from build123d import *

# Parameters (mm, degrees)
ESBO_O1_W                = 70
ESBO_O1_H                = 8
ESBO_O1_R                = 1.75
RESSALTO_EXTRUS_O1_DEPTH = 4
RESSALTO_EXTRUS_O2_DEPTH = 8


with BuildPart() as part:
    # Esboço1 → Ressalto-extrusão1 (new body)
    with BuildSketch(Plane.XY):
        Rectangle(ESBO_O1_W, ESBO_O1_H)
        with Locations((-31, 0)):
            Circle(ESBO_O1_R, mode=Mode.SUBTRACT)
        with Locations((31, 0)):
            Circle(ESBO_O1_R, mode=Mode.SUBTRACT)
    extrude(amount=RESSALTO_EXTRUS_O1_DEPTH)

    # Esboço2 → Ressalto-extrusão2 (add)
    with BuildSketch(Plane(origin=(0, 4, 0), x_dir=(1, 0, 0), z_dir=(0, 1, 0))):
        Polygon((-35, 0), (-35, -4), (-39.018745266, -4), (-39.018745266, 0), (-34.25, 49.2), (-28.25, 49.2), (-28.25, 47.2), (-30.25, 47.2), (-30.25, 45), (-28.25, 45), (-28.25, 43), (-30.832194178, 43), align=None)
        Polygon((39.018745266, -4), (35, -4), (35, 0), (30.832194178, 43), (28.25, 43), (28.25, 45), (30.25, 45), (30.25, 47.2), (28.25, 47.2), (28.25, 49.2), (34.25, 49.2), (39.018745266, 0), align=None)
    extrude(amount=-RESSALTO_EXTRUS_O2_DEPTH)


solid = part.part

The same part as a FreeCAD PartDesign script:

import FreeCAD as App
import Part
import Sketcher

V = App.Vector
Q = App.Units.Quantity


def add_polygon(sketch, points):
    """Adds a closed chain of lines whose ends are joined by coincident constraints."""
    first, n = sketch.GeometryCount, len(points)
    for a, b in zip(points, points[1:] + points[:1]):
        sketch.addGeometry(Part.LineSegment(App.Vector(*a, 0), App.Vector(*b, 0)), False)
    for i in range(n):
        sketch.addConstraint(Sketcher.Constraint("Coincident", first + i, 2, first + (i + 1) % n, 1))

doc = App.newDocument("Part")
body = doc.addObject("PartDesign::Body", "Body")

# Sketch on XY plane
sketch1 = body.newObject("Sketcher::SketchObject", "Sketch")
sketch1.AttachmentSupport = (doc.getObject("XY_Plane"), [""])
sketch1.MapMode = "FlatFace"
add_polygon(sketch1, [(-35, 4), (-35, -4), (35, -4), (35, 4)])  # lines 0-3
sketch1.addGeometry(Part.Circle(V(-31, 0, 0), V(0, 0, 1), 1.75), False)  # 4
sketch1.addGeometry(Part.Circle(V(31, 0, 0), V(0, 0, 1), 1.75), False)  # 5
sketch1.addConstraint(Sketcher.Constraint("Vertical", 0))
sketch1.addConstraint(Sketcher.Constraint("Horizontal", 1))
sketch1.addConstraint(Sketcher.Constraint("Vertical", 2))
sketch1.addConstraint(Sketcher.Constraint("Horizontal", 3))
sketch1.addConstraint(Sketcher.Constraint("Equal", 4, 5))
sketch1.addConstraint(Sketcher.Constraint("Symmetric", 4, 3, 5, 3, -1, 1))
sketch1.addConstraint(Sketcher.Constraint("Symmetric", 0, 2, 2, 2, -1, 1))
sketch1.addConstraint(Sketcher.Constraint("PointOnObject", 4, 3, -1))
sketch1.addConstraint(Sketcher.Constraint("Diameter", 4, Q("3.5 mm")))
sketch1.addConstraint(Sketcher.Constraint("DistanceX", 1, 1, 1, 2, Q("70 mm")))
sketch1.addConstraint(Sketcher.Constraint("DistanceY", 0, 2, 0, 1, Q("8 mm")))
sketch1.addConstraint(Sketcher.Constraint("DistanceX", 4, 3, -1, 1, Q("31 mm")))
pad1 = body.newObject("PartDesign::Pad", "Pad")
pad1.Profile = sketch1
pad1.Length = 4

# Sketch on XZ plane
sketch2 = body.newObject("Sketcher::SketchObject", "Sketch001")
sketch2.AttachmentSupport = (doc.getObject("XZ_Plane"), [""])
sketch2.MapMode = "FlatFace"
sketch2.AttachmentOffset = App.Placement(V(0, 0, -4), App.Rotation())
add_polygon(sketch2, [(-35, 4), (-35, 0), (-30.832194, -43), (-28.25, -43), (-28.25, -45), (-30.25, -45), (-30.25, -47.2), (-28.25, -47.2), (-28.25, -49.2), (-34.25, -49.2), (-39.018745, 0), (-39.018745, 4)])  # lines 0-11
add_polygon(sketch2, [(35, 4), (39.018745, 4), (39.018745, 0), (34.25, -49.2), (28.25, -49.2), (28.25, -47.2), (30.25, -47.2), (30.25, -45), (28.25, -45), (28.25, -43), (30.832194, -43), (35, 0)])  # lines 12-23
sketch2.addConstraint(Sketcher.Constraint("Vertical", 0))
sketch2.addConstraint(Sketcher.Constraint("Horizontal", 2))
sketch2.addConstraint(Sketcher.Constraint("Vertical", 3))
sketch2.addConstraint(Sketcher.Constraint("Horizontal", 4))
sketch2.addConstraint(Sketcher.Constraint("Vertical", 5))
sketch2.addConstraint(Sketcher.Constraint("Horizontal", 6))
sketch2.addConstraint(Sketcher.Constraint("Vertical", 7))
sketch2.addConstraint(Sketcher.Constraint("Horizontal", 8))
sketch2.addConstraint(Sketcher.Constraint("Vertical", 10))
sketch2.addConstraint(Sketcher.Constraint("Horizontal", 11))
sketch2.addConstraint(Sketcher.Constraint("Horizontal", 12))
sketch2.addConstraint(Sketcher.Constraint("Vertical", 13))
sketch2.addConstraint(Sketcher.Constraint("Horizontal", 15))
sketch2.addConstraint(Sketcher.Constraint("Vertical", 16))
sketch2.addConstraint(Sketcher.Constraint("Horizontal", 17))
sketch2.addConstraint(Sketcher.Constraint("Vertical", 18))
sketch2.addConstraint(Sketcher.Constraint("Horizontal", 19))
sketch2.addConstraint(Sketcher.Constraint("Vertical", 20))
sketch2.addConstraint(Sketcher.Constraint("Horizontal", 21))
sketch2.addConstraint(Sketcher.Constraint("Vertical", 23))
sketch2.addConstraint(Sketcher.Constraint("Symmetric", 9, 2, 13, 2, -1, 1))
sketch2.addConstraint(Sketcher.Constraint("Symmetric", 0, 2, 22, 2, -1, 1))
sketch2.addConstraint(Sketcher.Constraint("Symmetric", 8, 2, 14, 2, -2))
sketch2.addConstraint(Sketcher.Constraint("Symmetric", 6, 2, 16, 2, -2))
sketch2.addConstraint(Sketcher.Constraint("Symmetric", 4, 2, 18, 2, -2))
sketch2.addConstraint(Sketcher.Constraint("Symmetric", 2, 2, 20, 2, -2))
sketch2.addConstraint(Sketcher.Constraint("PointOnObject", 0, 2, -1))
sketch2.addConstraint(Sketcher.Constraint("PointOnObject", 9, 2, -1))
sketch2.addConstraint(Sketcher.Constraint("Parallel", 1, 9))
sketch2.addConstraint(Sketcher.Constraint("Parallel", 14, 22))
sketch2.addConstraint(Sketcher.Constraint("Horizontal", 11, 2, 12, 2))
sketch2.addConstraint(Sketcher.Constraint("Vertical", 3, 2, 6, 2))
sketch2.addConstraint(Sketcher.Constraint("Equal", 19, 3))
sketch2.addConstraint(Sketcher.Constraint("Equal", 3, 7))
sketch2.addConstraint(Sketcher.Constraint("DistanceX", 4, 2, 4, 1, Q("2 mm")))
sketch2.addConstraint(Sketcher.Constraint("DistanceX", 8, 2, 8, 1, Q("6 mm")))
sketch2.addConstraint(Sketcher.Constraint("DistanceY", 0, 2, 0, 1, Q("4 mm")))
sketch2.addConstraint(Sketcher.Constraint("DistanceY", 5, 2, 5, 1, Q("2.2 mm")))
sketch2.addConstraint(Sketcher.Constraint("DistanceX", 0, 2, -1, 1, Q("35 mm")))
sketch2.addConstraint(Sketcher.Constraint("DistanceY", 1, 2, -1, 1, Q("43 mm")))
sketch2.addConstraint(Sketcher.Constraint("DistanceX", 7, 2, 14, 2, Q("62.5 mm")))
sketch2.addConstraint(Sketcher.Constraint("Distance", 1, Q("43.201512 mm")))
pad2 = body.newObject("PartDesign::Pad", "Pad001")
pad2.Profile = sketch2
pad2.Length = 8

doc.recompute()
